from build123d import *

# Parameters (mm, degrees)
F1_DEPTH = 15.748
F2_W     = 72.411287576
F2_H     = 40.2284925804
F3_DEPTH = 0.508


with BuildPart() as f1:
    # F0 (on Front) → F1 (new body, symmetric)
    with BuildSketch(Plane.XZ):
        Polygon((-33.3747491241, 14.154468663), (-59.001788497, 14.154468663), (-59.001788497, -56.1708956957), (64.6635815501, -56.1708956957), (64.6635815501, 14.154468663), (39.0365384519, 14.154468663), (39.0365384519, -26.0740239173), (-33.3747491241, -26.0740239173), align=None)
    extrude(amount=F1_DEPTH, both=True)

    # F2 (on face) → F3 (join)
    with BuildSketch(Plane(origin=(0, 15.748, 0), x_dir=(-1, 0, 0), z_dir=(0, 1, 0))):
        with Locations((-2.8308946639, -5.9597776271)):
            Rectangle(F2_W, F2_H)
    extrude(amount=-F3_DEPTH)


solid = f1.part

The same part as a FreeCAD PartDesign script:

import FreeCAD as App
import Part
import Sketcher

doc = App.newDocument("Part")
params = doc.addObject("Spreadsheet::Sheet", "Params")
for row, (alias, value) in enumerate([
    ("pad1_length", "1.24 in"),
    ("pad2_length", "0.02 in"),
], start=1):
    params.set(f"A{row}", alias)
    params.set(f"B{row}", "=" + value)
    params.setAlias(f"B{row}", alias)

body = doc.addObject("PartDesign::Body", "Body")

sketch1 = doc.addObject("Sketcher::SketchObject", "Sketch")
body.addObject(sketch1)
sketch1.AttachmentSupport = (doc.XZ_Plane, [""])
sketch1.MapMode = "FlatFace"
sketch1.addGeometry([
    Part.LineSegment(App.Vector(-33, 14, 0), App.Vector(-59, 14, 0)),
    Part.LineSegment(App.Vector(-59, 14, 0), App.Vector(-59, -56, 0)),
    Part.LineSegment(App.Vector(-59, -56, 0), App.Vector(65, -56, 0)),
    Part.LineSegment(App.Vector(65, -56, 0), App.Vector(65, 14, 0)),
    Part.LineSegment(App.Vector(65, 14, 0), App.Vector(39, 14, 0)),
    Part.LineSegment(App.Vector(39, 14, 0), App.Vector(39, -26, 0)),
    Part.LineSegment(App.Vector(39, -26, 0), App.Vector(-33, -26, 0)),
    Part.LineSegment(App.Vector(-33, -26, 0), App.Vector(-33, 14, 0)),
], False)
sketch1.addConstraint([
    Sketcher.Constraint("Coincident", 0, 2, 1, 1),
    Sketcher.Constraint("Coincident", 1, 2, 2, 1),
    Sketcher.Constraint("Coincident", 2, 2, 3, 1),
    Sketcher.Constraint("Coincident", 3, 2, 4, 1),
    Sketcher.Constraint("Coincident", 4, 2, 5, 1),
    Sketcher.Constraint("Coincident", 5, 2, 6, 1),
    Sketcher.Constraint("Coincident", 6, 2, 7, 1),
    Sketcher.Constraint("Coincident", 7, 2, 0, 1),
    Sketcher.Constraint("Horizontal", 0),
    Sketcher.Constraint("Vertical", 1),
    Sketcher.Constraint("Horizontal", 2),
    Sketcher.Constraint("Vertical", 3),
    Sketcher.Constraint("Horizontal", 4),
    Sketcher.Constraint("Vertical", 5),
    Sketcher.Constraint("Horizontal", 6),
    Sketcher.Constraint("Vertical", 7),
    Sketcher.Constraint("Horizontal", 0, 2, 3, 2),
    Sketcher.Constraint("DistanceX", 0, 2, 0, 1, 25.627039),
    Sketcher.Constraint("DistanceX", 2, 1, 2, 2, 123.66537),
    Sketcher.Constraint("DistanceX", 4, 2, 4, 1, 25.627043),
    Sketcher.Constraint("DistanceY", 1, 2, 1, 1, 70.325364),
    Sketcher.Constraint("DistanceY", 5, 2, 5, 1, 40.228493),
    Sketcher.Constraint("DistanceX", 0, 2, -1, 1, 59.001788),
    Sketcher.Constraint("DistanceY", -1, 1, 0, 2, 14.154469),
])
pad1 = doc.addObject("PartDesign::Pad", "Pad")
body.addObject(pad1)
pad1.Profile = sketch1
pad1.setExpression("Length", "Params.pad1_length")
pad1.Midplane = True

sketch2 = doc.addObject("Sketcher::SketchObject", "Sketch001")
body.addObject(sketch2)
sketch2.AttachmentSupport = (doc.XZ_Plane, [""])
sketch2.MapMode = "FlatFace"
sketch2.AttachmentOffset = App.Placement(App.Vector(0, 0, -0.62 * 25.4), App.Rotation())
sketch2.addGeometry([
    Part.LineSegment(App.Vector(39, 14, 0), App.Vector(39, -26, 0)),
    Part.LineSegment(App.Vector(39, -26, 0), App.Vector(-33, -26, 0)),
    Part.LineSegment(App.Vector(-33, -26, 0), App.Vector(-33, 14, 0)),
    Part.LineSegment(App.Vector(-33, 14, 0), App.Vector(39, 14, 0)),
], False)
sketch2.addConstraint([
    Sketcher.Constraint("Coincident", 0, 2, 1, 1),
    Sketcher.Constraint("Coincident", 1, 2, 2, 1),
    Sketcher.Constraint("Coincident", 2, 2, 3, 1),
    Sketcher.Constraint("Coincident", 3, 2, 0, 1),
    Sketcher.Constraint("Vertical", 0),
    Sketcher.Constraint("Horizontal", 1),
    Sketcher.Constraint("Vertical", 2),
    Sketcher.Constraint("Horizontal", 3),
    Sketcher.Constraint("DistanceX", 1, 2, 1, 1, 72.411288),
    Sketcher.Constraint("DistanceY", 0, 2, 0, 1, 40.228493),
    Sketcher.Constraint("DistanceX", -1, 1, 0, 2, 39.036538),
    Sketcher.Constraint("DistanceY", -1, 1, 2, 2, 14.154469),
])
pad2 = doc.addObject("PartDesign::Pad", "Pad001")
body.addObject(pad2)
pad2.Profile = sketch2
pad2.setExpression("Length", "Params.pad2_length")

doc.recompute()
